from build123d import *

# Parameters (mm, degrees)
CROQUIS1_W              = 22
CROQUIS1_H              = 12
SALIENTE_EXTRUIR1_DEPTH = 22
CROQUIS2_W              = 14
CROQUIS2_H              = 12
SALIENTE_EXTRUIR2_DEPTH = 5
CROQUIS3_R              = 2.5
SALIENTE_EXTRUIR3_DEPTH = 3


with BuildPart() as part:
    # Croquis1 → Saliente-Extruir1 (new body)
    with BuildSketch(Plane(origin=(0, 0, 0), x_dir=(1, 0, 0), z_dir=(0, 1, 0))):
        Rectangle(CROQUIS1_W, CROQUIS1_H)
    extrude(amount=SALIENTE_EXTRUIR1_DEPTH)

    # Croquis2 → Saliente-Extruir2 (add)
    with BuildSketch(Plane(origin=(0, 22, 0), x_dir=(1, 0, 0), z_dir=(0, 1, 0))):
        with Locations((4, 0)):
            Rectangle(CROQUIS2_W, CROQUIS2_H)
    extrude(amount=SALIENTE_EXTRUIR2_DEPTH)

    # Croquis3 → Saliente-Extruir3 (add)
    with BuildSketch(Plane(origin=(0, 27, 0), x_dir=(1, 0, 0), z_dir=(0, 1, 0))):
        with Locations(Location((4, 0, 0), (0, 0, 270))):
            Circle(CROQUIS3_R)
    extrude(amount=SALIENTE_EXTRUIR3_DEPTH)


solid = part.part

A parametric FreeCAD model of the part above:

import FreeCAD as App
import Part
import Sketcher

doc = App.newDocument("Part")
params = doc.addObject("Spreadsheet::Sheet", "Params")
for row, (alias, value) in enumerate([
    ("sketch1_width", "22 mm"),
    ("sketch1_height", "12 mm"),
    ("pad1_length", "22 mm"),
    ("sketch2_width", "14 mm"),
    ("sketch2_height", "12 mm"),
    ("pad2_length", "5 mm"),
    ("sketch3_diameter", "5 mm"),
    ("pad3_length", "3 mm"),
], start=1):
    params.set(f"A{row}", alias)
    params.set(f"B{row}", "=" + value)
    params.setAlias(f"B{row}", alias)

body = doc.addObject("PartDesign::Body", "Body")

# Sketch on XZ plane
sketch1 = body.newObject("Sketcher::SketchObject", "Sketch")
sketch1.AttachmentSupport = (doc.getObject("XZ_Plane"), [""])
sketch1.MapMode = "FlatFace"
sketch1.addGeometry([
    Part.LineSegment(App.Vector(-11, -6, 0), App.Vector(-11, 6, 0)),
    Part.LineSegment(App.Vector(-11, 6, 0), App.Vector(11, 6, 0)),
    Part.LineSegment(App.Vector(11, 6, 0), App.Vector(11, -6, 0)),
    Part.LineSegment(App.Vector(11, -6, 0), App.Vector(-11, -6, 0)),
], False)
sketch1.addConstraint([
    Sketcher.Constraint("Coincident", 0, 2, 1, 1),
    Sketcher.Constraint("Coincident", 1, 2, 2, 1),
    Sketcher.Constraint("Coincident", 2, 2, 3, 1),
    Sketcher.Constraint("Coincident", 3, 2, 0, 1),
    Sketcher.Constraint("Vertical", 0),
    Sketcher.Constraint("Horizontal", 1),
    Sketcher.Constraint("Vertical", 2),
    Sketcher.Constraint("Horizontal", 3),
    Sketcher.Constraint("Symmetric", 0, 2, 2, 2, -1, 1),
    Sketcher.Constraint("DistanceX", 1, 1, 1, 2, 22.0),
    Sketcher.Constraint("DistanceY", 0, 1, 0, 2, 12.0),
])
sketch1.setExpression("Constraints[9]", "Params.sketch1_width")
sketch1.setExpression("Constraints[10]", "Params.sketch1_height")
pad1 = body.newObject("PartDesign::Pad", "Pad")
pad1.Profile = sketch1
pad1.setExpression("Length", "Params.pad1_length")
pad1.Reversed = True

# Sketch on XZ plane
sketch2 = body.newObject("Sketcher::SketchObject", "Sketch001")
sketch2.AttachmentSupport = (doc.getObject("XZ_Plane"), [""])
sketch2.MapMode = "FlatFace"
sketch2.AttachmentOffset = App.Placement(App.Vector(0, 0, -22), App.Rotation())
sketch2.addGeometry([
    Part.LineSegment(App.Vector(-3, -6, 0), App.Vector(-3, 6, 0)),
    Part.LineSegment(App.Vector(-3, 6, 0), App.Vector(11, 6, 0)),
    Part.LineSegment(App.Vector(11, 6, 0), App.Vector(11, -6, 0)),
    Part.LineSegment(App.Vector(11, -6, 0), App.Vector(-3, -6, 0)),
], False)
sketch2.addConstraint([
    Sketcher.Constraint("Coincident", 0, 2, 1, 1),
    Sketcher.Constraint("Coincident", 1, 2, 2, 1),
    Sketcher.Constraint("Coincident", 2, 2, 3, 1),
    Sketcher.Constraint("Coincident", 3, 2, 0, 1),
    Sketcher.Constraint("Vertical", 0),
    Sketcher.Constraint("Horizontal", 1),
    Sketcher.Constraint("Vertical", 2),
    Sketcher.Constraint("Horizontal", 3),
    Sketcher.Constraint("DistanceX", 1, 1, 1, 2, 14.0),
    Sketcher.Constraint("DistanceY", 0, 1, 0, 2, 12.0),
    Sketcher.Constraint("DistanceX", 0, 2, -1, 1, 3.0),
    Sketcher.Constraint("DistanceY", -1, 1, 0, 2, 6.0),
])
sketch2.setExpression("Constraints[8]", "Params.sketch2_width")
sketch2.setExpression("Constraints[9]", "Params.sketch2_height")
pad2 = body.newObject("PartDesign::Pad", "Pad001")
pad2.Profile = sketch2
pad2.setExpression("Length", "Params.pad2_length")
pad2.Reversed = True

# Sketch on XZ plane
sketch3 = body.newObject("Sketcher::SketchObject", "Sketch002")
sketch3.AttachmentSupport = (doc.getObject("XZ_Plane"), [""])
sketch3.MapMode = "FlatFace"
sketch3.AttachmentOffset = App.Placement(App.Vector(0, 0, -27), App.Rotation())
sketch3.addGeometry(Part.Circle(App.Vector(4, 0, 0), App.Vector(0, 0, 1), 2.5), False)
sketch3.addConstraint([
    Sketcher.Constraint("PointOnObject", 0, 3, -1),
    Sketcher.Constraint("Diameter", 0, 5.0),
    Sketcher.Constraint("DistanceX", -1, 1, 0, 3, 4.0),
])
sketch3.setExpression("Constraints[1]", "Params.sketch3_diameter")
pad3 = body.newObject("PartDesign::Pad", "Pad002")
pad3.Profile = sketch3
pad3.setExpression("Length", "Params.pad3_length")
pad3.Reversed = True

doc.recompute()
